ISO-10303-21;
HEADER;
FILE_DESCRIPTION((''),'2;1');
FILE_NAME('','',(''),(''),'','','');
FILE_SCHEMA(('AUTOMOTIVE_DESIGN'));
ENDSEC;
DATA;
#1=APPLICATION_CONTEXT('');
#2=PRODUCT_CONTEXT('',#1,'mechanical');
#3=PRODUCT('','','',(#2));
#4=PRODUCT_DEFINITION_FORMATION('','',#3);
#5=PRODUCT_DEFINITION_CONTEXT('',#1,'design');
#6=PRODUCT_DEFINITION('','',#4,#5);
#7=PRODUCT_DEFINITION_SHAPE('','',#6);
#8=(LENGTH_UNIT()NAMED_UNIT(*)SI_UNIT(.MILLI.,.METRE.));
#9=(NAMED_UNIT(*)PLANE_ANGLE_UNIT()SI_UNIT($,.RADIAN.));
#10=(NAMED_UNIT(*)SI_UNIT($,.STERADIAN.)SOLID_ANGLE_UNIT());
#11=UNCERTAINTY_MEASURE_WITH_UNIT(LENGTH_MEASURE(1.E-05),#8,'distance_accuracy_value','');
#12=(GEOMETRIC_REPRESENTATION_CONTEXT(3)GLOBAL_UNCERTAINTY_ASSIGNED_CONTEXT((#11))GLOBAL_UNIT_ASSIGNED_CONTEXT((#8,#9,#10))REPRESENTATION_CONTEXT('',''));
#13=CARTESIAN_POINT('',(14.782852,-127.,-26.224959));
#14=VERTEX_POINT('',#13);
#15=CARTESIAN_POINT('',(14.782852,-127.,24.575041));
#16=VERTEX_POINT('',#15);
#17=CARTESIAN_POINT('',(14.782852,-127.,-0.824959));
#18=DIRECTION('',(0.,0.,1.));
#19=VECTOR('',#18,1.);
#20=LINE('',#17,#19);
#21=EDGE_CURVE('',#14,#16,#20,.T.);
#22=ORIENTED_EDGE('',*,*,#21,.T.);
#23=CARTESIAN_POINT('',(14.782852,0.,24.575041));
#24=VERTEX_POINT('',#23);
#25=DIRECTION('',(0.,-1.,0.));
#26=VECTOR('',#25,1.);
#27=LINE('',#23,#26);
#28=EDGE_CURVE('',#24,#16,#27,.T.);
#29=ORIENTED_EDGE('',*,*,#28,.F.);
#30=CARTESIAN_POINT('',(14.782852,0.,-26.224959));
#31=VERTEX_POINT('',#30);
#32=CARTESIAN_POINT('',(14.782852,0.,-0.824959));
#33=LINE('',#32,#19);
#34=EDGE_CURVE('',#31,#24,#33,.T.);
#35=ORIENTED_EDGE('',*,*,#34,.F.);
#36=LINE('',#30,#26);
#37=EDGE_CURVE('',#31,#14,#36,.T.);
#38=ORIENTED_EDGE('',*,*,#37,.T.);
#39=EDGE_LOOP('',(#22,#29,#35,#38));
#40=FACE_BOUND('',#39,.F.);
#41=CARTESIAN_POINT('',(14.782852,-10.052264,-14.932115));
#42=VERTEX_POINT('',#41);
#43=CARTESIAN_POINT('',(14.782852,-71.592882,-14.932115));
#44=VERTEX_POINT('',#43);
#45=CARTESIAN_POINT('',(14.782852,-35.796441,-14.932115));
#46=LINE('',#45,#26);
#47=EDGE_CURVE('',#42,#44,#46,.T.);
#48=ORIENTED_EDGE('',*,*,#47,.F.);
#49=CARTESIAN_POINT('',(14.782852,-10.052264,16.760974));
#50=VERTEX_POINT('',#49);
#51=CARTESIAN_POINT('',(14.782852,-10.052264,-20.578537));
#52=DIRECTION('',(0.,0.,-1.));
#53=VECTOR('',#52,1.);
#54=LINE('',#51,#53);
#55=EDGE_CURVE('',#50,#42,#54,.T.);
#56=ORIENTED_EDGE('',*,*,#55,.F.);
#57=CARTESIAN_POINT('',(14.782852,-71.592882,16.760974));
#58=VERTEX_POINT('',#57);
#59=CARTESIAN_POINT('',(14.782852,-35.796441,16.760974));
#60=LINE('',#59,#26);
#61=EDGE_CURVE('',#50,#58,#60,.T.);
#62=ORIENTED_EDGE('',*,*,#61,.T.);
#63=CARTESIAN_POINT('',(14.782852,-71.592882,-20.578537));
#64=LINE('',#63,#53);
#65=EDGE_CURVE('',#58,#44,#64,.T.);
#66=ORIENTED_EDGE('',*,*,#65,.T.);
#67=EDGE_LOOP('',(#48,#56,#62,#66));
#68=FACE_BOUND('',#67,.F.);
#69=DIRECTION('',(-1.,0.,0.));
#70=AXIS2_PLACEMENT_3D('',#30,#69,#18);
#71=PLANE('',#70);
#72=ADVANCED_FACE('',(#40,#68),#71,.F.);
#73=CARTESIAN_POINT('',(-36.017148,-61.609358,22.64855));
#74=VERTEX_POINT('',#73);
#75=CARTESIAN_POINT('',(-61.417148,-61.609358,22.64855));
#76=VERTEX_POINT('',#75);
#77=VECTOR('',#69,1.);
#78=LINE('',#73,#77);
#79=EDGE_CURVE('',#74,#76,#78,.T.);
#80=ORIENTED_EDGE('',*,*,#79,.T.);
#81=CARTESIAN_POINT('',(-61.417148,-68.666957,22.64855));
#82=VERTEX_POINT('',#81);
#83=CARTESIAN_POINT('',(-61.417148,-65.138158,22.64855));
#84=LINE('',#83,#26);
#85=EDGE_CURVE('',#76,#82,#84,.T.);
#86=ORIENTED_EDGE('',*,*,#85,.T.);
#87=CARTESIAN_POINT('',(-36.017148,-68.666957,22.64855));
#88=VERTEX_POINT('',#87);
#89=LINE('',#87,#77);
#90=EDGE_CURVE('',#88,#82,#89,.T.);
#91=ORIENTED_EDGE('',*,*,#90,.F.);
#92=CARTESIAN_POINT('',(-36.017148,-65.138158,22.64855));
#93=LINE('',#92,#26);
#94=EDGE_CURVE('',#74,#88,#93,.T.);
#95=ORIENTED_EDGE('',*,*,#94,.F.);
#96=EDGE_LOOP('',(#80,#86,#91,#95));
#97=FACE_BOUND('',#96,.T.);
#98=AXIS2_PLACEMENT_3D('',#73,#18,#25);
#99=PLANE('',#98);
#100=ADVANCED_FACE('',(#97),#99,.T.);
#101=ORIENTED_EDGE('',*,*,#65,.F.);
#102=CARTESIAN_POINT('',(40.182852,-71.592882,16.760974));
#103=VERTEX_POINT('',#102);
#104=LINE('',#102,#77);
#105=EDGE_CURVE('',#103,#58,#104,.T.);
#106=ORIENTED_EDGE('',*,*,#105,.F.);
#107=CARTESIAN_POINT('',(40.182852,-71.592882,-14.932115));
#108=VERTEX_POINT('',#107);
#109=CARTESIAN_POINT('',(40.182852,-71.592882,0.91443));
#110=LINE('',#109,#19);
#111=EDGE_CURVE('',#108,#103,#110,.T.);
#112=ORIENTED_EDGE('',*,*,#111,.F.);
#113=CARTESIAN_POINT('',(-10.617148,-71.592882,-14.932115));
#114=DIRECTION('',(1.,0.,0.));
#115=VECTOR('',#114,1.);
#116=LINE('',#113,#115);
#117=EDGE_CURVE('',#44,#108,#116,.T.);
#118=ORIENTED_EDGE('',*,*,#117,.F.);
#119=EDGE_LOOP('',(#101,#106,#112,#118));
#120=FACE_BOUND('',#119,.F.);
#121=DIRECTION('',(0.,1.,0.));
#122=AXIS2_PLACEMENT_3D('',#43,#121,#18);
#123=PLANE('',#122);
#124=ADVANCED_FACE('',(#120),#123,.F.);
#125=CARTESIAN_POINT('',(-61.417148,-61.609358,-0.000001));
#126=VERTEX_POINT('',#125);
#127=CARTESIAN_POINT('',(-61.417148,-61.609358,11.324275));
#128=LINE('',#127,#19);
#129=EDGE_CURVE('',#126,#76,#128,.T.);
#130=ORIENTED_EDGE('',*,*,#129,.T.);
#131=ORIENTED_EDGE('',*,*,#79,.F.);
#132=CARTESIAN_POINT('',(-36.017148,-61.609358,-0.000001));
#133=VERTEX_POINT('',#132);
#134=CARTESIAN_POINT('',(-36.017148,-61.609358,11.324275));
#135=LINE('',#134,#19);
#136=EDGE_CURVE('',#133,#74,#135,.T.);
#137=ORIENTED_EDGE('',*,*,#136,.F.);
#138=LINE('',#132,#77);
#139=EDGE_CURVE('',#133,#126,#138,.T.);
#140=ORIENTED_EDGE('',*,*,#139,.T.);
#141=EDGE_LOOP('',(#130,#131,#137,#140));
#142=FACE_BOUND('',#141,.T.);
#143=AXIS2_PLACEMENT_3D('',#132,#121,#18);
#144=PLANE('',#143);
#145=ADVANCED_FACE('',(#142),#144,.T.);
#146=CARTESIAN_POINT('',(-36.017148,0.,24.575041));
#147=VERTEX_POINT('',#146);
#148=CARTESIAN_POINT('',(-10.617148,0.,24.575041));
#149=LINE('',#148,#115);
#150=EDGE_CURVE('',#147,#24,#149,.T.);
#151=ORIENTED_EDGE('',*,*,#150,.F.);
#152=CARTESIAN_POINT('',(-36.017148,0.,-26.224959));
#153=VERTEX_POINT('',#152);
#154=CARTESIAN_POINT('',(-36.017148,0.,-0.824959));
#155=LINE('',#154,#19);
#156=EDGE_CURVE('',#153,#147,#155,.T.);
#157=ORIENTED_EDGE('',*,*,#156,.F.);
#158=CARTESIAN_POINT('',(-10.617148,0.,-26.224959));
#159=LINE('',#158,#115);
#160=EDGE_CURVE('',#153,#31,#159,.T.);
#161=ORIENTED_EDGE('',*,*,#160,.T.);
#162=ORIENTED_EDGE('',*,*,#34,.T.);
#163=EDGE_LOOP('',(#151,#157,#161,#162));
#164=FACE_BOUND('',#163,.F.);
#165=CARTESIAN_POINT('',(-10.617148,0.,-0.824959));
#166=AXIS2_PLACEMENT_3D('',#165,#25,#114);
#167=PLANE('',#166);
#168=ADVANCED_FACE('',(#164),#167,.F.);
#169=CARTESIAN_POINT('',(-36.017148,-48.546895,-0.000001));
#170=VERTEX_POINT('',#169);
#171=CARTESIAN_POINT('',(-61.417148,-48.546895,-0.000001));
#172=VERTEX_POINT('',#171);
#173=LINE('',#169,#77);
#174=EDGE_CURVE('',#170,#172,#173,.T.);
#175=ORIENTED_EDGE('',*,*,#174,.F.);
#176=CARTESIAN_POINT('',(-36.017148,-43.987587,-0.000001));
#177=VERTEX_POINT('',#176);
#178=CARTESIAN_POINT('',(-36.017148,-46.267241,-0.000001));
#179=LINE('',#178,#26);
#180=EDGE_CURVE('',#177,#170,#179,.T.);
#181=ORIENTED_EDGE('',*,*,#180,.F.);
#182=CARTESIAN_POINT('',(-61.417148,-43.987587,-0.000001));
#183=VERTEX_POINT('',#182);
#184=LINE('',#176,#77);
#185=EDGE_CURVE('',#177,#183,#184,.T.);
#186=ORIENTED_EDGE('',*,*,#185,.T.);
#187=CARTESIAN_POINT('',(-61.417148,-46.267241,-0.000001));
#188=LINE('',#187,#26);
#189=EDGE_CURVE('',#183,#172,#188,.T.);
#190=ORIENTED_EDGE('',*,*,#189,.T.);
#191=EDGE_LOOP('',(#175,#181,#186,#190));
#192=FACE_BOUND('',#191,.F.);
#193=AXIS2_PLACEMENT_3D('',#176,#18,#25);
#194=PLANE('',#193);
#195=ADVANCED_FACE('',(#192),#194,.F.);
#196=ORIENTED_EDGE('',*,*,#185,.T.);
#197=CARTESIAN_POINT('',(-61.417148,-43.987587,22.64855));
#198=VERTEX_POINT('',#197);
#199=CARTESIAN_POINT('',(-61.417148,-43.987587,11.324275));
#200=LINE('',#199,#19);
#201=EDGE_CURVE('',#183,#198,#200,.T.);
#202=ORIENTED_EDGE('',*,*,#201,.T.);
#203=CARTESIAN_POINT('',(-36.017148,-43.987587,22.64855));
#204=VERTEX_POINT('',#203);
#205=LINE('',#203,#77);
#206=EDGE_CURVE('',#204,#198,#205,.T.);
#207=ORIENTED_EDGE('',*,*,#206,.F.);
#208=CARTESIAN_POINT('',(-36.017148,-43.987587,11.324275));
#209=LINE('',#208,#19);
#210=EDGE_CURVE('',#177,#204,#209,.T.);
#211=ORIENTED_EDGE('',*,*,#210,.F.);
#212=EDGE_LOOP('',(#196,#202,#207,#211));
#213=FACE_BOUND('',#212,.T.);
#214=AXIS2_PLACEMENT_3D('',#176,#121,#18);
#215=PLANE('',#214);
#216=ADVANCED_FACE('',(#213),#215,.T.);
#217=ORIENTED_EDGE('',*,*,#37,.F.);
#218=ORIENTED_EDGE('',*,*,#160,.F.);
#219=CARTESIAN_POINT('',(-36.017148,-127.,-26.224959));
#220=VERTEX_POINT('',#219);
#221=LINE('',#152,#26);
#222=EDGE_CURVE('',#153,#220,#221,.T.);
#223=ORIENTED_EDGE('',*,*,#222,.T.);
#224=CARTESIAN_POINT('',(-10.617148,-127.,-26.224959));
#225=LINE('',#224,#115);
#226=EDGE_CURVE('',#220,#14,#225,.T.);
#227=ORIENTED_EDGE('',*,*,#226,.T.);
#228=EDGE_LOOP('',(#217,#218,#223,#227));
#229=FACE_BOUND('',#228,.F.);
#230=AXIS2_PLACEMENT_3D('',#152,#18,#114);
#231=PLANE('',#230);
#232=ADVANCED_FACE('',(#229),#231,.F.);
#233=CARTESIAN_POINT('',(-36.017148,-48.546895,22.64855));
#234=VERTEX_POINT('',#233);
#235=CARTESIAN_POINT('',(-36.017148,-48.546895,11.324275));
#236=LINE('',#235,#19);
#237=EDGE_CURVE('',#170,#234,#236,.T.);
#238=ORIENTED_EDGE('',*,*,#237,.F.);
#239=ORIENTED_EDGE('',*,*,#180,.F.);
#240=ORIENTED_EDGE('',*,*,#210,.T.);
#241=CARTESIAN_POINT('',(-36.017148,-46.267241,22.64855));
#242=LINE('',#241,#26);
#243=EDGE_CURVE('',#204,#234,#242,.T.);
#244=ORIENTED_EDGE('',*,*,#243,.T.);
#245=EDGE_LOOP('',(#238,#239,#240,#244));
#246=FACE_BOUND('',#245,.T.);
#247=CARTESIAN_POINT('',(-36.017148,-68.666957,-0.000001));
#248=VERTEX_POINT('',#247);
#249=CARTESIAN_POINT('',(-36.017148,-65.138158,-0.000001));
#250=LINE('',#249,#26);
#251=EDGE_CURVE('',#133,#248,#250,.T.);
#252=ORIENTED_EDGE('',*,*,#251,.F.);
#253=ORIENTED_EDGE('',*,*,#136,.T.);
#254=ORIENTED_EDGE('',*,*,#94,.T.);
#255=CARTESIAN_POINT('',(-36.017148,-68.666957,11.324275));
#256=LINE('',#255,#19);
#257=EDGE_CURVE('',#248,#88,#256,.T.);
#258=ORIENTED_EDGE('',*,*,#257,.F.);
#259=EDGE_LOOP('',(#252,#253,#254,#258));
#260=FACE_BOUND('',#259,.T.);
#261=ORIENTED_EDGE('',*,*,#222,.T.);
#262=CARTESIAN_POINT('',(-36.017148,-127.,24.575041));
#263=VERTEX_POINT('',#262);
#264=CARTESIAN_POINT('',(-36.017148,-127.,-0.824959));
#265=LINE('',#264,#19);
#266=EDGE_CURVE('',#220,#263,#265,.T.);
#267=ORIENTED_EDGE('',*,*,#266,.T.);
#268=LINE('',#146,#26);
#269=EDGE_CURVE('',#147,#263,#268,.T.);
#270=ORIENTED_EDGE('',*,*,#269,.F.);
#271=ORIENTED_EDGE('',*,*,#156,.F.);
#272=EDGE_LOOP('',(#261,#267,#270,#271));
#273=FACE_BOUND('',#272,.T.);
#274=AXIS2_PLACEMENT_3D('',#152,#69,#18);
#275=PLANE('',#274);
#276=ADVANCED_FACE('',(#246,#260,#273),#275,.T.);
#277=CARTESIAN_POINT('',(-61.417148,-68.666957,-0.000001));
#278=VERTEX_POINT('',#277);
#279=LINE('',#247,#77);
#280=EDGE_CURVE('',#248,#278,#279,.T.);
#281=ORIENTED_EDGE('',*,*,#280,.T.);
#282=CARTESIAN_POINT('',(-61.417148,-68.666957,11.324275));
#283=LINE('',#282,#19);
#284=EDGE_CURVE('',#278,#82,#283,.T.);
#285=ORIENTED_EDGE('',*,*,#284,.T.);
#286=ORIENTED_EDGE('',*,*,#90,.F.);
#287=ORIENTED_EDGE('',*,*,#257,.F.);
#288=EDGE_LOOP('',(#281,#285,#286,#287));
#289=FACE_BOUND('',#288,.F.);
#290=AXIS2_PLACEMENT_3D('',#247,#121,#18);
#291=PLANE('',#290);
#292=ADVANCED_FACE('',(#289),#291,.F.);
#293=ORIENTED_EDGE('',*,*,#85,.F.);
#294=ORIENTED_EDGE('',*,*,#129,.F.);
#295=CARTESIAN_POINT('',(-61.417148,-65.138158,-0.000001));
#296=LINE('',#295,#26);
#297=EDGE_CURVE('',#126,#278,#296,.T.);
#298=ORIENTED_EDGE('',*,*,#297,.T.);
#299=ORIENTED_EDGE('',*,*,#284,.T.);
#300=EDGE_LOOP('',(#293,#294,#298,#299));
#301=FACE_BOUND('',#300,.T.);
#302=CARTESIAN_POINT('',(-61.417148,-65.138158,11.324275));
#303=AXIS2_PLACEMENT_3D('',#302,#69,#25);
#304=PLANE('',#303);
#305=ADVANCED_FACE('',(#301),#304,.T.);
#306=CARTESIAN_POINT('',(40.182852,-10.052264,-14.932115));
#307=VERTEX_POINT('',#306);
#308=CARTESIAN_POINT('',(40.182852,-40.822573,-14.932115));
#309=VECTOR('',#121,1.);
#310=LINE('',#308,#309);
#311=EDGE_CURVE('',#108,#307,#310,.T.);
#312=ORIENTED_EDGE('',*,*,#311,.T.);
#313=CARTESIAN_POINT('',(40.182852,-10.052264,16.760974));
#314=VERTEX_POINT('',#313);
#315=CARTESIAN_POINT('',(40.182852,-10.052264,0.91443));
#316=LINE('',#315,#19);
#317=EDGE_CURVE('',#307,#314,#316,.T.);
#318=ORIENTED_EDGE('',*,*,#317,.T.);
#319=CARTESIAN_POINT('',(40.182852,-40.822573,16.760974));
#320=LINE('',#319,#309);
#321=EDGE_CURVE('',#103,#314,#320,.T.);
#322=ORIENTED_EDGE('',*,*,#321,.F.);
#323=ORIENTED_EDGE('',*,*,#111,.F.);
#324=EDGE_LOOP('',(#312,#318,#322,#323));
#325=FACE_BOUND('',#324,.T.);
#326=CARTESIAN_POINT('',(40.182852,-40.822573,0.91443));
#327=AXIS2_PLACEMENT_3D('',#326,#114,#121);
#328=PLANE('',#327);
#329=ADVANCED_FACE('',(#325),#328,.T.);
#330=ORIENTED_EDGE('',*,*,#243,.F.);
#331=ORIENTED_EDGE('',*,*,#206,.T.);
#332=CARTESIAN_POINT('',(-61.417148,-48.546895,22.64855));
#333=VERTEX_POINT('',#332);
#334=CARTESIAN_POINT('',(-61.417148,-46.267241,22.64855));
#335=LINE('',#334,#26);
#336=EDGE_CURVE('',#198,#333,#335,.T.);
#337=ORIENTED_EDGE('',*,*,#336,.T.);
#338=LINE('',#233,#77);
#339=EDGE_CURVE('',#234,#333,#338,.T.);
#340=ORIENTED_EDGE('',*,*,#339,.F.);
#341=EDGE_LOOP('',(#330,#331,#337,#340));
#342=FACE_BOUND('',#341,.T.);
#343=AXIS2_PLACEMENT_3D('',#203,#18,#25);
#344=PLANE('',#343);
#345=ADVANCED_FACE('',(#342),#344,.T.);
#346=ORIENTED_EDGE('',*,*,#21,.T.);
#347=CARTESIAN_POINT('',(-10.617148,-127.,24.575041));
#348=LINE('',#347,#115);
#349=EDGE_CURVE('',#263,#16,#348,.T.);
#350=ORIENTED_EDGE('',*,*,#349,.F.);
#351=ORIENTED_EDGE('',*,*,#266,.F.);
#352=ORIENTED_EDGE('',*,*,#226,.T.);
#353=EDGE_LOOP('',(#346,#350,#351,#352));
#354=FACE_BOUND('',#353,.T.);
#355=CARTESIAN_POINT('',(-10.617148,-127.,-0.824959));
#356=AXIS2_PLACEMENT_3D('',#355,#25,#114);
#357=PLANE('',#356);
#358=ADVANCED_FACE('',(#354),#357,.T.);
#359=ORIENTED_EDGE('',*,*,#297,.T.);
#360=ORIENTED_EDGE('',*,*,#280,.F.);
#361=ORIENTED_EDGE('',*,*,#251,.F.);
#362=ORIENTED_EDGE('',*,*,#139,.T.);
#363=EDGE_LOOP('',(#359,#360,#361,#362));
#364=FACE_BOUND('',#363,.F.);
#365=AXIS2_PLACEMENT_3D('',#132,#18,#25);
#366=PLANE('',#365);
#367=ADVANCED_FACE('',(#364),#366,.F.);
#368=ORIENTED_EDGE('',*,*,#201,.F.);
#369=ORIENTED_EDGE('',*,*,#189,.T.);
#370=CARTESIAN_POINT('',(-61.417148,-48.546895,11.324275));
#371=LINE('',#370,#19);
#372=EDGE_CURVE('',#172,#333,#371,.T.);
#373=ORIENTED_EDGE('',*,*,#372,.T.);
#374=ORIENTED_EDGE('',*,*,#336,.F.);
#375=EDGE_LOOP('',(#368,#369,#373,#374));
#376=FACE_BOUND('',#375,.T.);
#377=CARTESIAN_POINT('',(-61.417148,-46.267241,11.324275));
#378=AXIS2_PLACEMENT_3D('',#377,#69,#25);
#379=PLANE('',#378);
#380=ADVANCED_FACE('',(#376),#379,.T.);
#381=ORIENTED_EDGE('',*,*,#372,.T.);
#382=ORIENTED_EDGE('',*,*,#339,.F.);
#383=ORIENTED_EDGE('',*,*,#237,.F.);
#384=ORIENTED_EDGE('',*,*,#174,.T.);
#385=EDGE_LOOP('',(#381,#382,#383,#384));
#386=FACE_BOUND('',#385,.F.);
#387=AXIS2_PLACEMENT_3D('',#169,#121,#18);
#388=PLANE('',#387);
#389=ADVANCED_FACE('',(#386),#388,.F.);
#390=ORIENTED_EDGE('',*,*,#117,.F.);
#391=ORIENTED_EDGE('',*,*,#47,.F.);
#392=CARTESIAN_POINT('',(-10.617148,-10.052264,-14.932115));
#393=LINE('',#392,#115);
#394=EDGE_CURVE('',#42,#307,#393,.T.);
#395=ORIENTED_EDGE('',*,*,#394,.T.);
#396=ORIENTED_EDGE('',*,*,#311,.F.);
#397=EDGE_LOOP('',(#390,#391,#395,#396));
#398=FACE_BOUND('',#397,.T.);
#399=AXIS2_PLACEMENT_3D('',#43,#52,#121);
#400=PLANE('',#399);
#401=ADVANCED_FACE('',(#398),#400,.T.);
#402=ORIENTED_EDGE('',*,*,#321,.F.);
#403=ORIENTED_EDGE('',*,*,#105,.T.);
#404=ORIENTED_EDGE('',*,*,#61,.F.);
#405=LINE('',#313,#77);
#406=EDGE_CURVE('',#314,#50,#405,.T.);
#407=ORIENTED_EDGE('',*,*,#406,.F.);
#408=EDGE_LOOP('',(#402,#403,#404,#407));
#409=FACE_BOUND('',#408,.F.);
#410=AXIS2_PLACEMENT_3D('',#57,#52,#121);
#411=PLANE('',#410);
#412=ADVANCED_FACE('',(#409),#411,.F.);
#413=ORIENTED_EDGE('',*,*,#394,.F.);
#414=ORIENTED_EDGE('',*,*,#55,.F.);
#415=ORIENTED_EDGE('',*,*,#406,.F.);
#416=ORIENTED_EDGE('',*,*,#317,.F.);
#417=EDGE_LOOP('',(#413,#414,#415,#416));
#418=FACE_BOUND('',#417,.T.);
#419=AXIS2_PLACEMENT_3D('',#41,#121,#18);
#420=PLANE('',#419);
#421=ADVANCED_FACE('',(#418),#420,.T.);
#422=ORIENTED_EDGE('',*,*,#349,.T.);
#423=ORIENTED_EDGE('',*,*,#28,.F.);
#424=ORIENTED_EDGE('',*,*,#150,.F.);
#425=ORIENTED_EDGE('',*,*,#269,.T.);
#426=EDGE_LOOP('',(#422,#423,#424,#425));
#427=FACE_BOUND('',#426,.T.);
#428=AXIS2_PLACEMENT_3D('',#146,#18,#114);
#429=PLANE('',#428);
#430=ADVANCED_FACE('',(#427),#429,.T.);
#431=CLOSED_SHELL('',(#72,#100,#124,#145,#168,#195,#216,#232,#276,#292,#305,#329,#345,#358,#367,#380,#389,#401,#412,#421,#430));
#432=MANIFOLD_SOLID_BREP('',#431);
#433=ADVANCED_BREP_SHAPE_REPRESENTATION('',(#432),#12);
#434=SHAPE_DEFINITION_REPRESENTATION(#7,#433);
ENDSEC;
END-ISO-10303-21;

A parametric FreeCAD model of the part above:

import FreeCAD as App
import Part
import Sketcher

V = App.Vector
Q = App.Units.Quantity

doc = App.newDocument("Part")
body = doc.addObject("PartDesign::Body", "Body")

sketch1 = body.newObject("Sketcher::SketchObject", "Sketch")
sketch1.AttachmentSupport = (doc.getObject("XZ_Plane"), [""])
sketch1.MapMode = "FlatFace"
sketch1.addGeometry([
    Part.LineSegment(V(-36, 25, 0), V(-36, -26, 0)),
    Part.LineSegment(V(-36, -26, 0), V(15, -26, 0)),
    Part.LineSegment(V(15, -26, 0), V(15, 25, 0)),
    Part.LineSegment(V(15, 25, 0), V(-36, 25, 0)),
], False)
sketch1.addConstraint([
    Sketcher.Constraint("Coincident", 0, 2, 1, 1),
    Sketcher.Constraint("Coincident", 1, 2, 2, 1),
    Sketcher.Constraint("Coincident", 2, 2, 3, 1),
    Sketcher.Constraint("Coincident", 3, 2, 0, 1),
    Sketcher.Constraint("Vertical", 0),
    Sketcher.Constraint("Horizontal", 1),
    Sketcher.Constraint("Vertical", 2),
    Sketcher.Constraint("Horizontal", 3),
    Sketcher.Constraint("Equal", 3, 0),
    Sketcher.Constraint("DistanceX", 1, 1, 1, 2, Q("2 in")),
    Sketcher.Constraint("DistanceY", 0, 2, -1, 1, Q("26.224959 mm")),
    Sketcher.Constraint("DistanceX", 0, 2, -1, 1, Q("36.017148 mm")),
])
pad1 = body.newObject("PartDesign::Pad", "Pad")
pad1.Profile = sketch1
pad1.Length = Q("5 in")

sketch2 = body.newObject("Sketcher::SketchObject", "Sketch001")
sketch2.AttachmentSupport = (doc.getObject("YZ_Plane"), [""])
sketch2.MapMode = "FlatFace"
sketch2.AttachmentOffset = App.Placement(V(0, 0, 14.782852), App.Rotation())
sketch2.addGeometry([
    Part.LineSegment(V(-72, 17, 0), V(-72, -15, 0)),
    Part.LineSegment(V(-72, -15, 0), V(-10, -15, 0)),
    Part.LineSegment(V(-10, -15, 0), V(-10, 17, 0)),
    Part.LineSegment(V(-10, 17, 0), V(-72, 17, 0)),
], False)
sketch2.addConstraint([
    Sketcher.Constraint("Coincident", 0, 2, 1, 1),
    Sketcher.Constraint("Coincident", 1, 2, 2, 1),
    Sketcher.Constraint("Coincident", 2, 2, 3, 1),
    Sketcher.Constraint("Coincident", 3, 2, 0, 1),
    Sketcher.Constraint("Vertical", 0),
    Sketcher.Constraint("Horizontal", 1),
    Sketcher.Constraint("Vertical", 2),
    Sketcher.Constraint("Horizontal", 3),
    Sketcher.Constraint("DistanceX", 1, 1, 1, 2, Q("61.540618 mm")),
    Sketcher.Constraint("DistanceY", 0, 2, 0, 1, Q("31.693089 mm")),
    Sketcher.Constraint("DistanceX", 0, 2, -1, 1, Q("71.592882 mm")),
    Sketcher.Constraint("DistanceY", 0, 2, -1, 1, Q("14.932115 mm")),
])
pad2 = body.newObject("PartDesign::Pad", "Pad001")
pad2.Profile = sketch2
pad2.Length = Q("2 in")
pad2.Midplane = True

sketch3 = body.newObject("Sketcher::SketchObject", "Sketch002")
sketch3.AttachmentSupport = (doc.getObject("YZ_Plane"), [""])
sketch3.MapMode = "FlatFace"
sketch3.AttachmentOffset = App.Placement(V(0, 0, -36.017148), App.Rotation())
sketch3.addGeometry([
    Part.LineSegment(V(-44, 22.6, 0), V(-44, 0, 0)),
    Part.LineSegment(V(-44, 0, 0), V(-48.5, 0, 0)),
    Part.LineSegment(V(-48.5, 0, 0), V(-48.5, 22.6, 0)),
    Part.LineSegment(V(-48.5, 22.6, 0), V(-44, 22.6, 0)),
], False)
sketch3.addConstraint([
    Sketcher.Constraint("Coincident", 0, 2, 1, 1),
    Sketcher.Constraint("Coincident", 1, 2, 2, 1),
    Sketcher.Constraint("Coincident", 2, 2, 3, 1),
    Sketcher.Constraint("Coincident", 3, 2, 0, 1),
    Sketcher.Constraint("Vertical", 0),
    Sketcher.Constraint("Horizontal", 1),
    Sketcher.Constraint("Vertical", 2),
    Sketcher.Constraint("Horizontal", 3),
    Sketcher.Constraint("PointOnObject", 0, 2, -1),
    Sketcher.Constraint("DistanceX", 1, 2, 1, 1, Q("4.559308 mm")),
    Sketcher.Constraint("DistanceY", 0, 2, 0, 1, Q("22.648551 mm")),
    Sketcher.Constraint("DistanceX", 0, 2, -1, 1, Q("43.987587 mm")),
])
pad3 = body.newObject("PartDesign::Pad", "Pad002")
pad3.Profile = sketch3
pad3.Length = Q("1 in")
pad3.Reversed = True

sketch4 = body.newObject("Sketcher::SketchObject", "Sketch003")
sketch4.AttachmentSupport = (doc.getObject("YZ_Plane"), [""])
sketch4.MapMode = "FlatFace"
sketch4.AttachmentOffset = App.Placement(V(0, 0, -36.017148), App.Rotation())
sketch4.addGeometry([
    Part.LineSegment(V(-62, 23, 0), V(-62, 0, 0)),
    Part.LineSegment(V(-62, 0, 0), V(-69, 0, 0)),
    Part.LineSegment(V(-69, 0, 0), V(-69, 23, 0)),
    Part.LineSegment(V(-69, 23, 0), V(-62, 23, 0)),
], False)
sketch4.addConstraint([
    Sketcher.Constraint("Coincident", 0, 2, 1, 1),
    Sketcher.Constraint("Coincident", 1, 2, 2, 1),
    Sketcher.Constraint("Coincident", 2, 2, 3, 1),
    Sketcher.Constraint("Coincident", 3, 2, 0, 1),
    Sketcher.Constraint("Vertical", 0),
    Sketcher.Constraint("Horizontal", 1),
    Sketcher.Constraint("Vertical", 2),
    Sketcher.Constraint("Horizontal", 3),
    Sketcher.Constraint("PointOnObject", 0, 2, -1),
    Sketcher.Constraint("DistanceX", 1, 2, 1, 1, Q("7.057599 mm")),
    Sketcher.Constraint("DistanceY", 0, 2, 0, 1, Q("22.648551 mm")),
    Sketcher.Constraint("DistanceX", 0, 2, -1, 1, Q("61.609358 mm")),
])
pad4 = body.newObject("PartDesign::Pad", "Pad003")
pad4.Profile = sketch4
pad4.Length = Q("1 in")
pad4.Reversed = True

doc.recompute()
